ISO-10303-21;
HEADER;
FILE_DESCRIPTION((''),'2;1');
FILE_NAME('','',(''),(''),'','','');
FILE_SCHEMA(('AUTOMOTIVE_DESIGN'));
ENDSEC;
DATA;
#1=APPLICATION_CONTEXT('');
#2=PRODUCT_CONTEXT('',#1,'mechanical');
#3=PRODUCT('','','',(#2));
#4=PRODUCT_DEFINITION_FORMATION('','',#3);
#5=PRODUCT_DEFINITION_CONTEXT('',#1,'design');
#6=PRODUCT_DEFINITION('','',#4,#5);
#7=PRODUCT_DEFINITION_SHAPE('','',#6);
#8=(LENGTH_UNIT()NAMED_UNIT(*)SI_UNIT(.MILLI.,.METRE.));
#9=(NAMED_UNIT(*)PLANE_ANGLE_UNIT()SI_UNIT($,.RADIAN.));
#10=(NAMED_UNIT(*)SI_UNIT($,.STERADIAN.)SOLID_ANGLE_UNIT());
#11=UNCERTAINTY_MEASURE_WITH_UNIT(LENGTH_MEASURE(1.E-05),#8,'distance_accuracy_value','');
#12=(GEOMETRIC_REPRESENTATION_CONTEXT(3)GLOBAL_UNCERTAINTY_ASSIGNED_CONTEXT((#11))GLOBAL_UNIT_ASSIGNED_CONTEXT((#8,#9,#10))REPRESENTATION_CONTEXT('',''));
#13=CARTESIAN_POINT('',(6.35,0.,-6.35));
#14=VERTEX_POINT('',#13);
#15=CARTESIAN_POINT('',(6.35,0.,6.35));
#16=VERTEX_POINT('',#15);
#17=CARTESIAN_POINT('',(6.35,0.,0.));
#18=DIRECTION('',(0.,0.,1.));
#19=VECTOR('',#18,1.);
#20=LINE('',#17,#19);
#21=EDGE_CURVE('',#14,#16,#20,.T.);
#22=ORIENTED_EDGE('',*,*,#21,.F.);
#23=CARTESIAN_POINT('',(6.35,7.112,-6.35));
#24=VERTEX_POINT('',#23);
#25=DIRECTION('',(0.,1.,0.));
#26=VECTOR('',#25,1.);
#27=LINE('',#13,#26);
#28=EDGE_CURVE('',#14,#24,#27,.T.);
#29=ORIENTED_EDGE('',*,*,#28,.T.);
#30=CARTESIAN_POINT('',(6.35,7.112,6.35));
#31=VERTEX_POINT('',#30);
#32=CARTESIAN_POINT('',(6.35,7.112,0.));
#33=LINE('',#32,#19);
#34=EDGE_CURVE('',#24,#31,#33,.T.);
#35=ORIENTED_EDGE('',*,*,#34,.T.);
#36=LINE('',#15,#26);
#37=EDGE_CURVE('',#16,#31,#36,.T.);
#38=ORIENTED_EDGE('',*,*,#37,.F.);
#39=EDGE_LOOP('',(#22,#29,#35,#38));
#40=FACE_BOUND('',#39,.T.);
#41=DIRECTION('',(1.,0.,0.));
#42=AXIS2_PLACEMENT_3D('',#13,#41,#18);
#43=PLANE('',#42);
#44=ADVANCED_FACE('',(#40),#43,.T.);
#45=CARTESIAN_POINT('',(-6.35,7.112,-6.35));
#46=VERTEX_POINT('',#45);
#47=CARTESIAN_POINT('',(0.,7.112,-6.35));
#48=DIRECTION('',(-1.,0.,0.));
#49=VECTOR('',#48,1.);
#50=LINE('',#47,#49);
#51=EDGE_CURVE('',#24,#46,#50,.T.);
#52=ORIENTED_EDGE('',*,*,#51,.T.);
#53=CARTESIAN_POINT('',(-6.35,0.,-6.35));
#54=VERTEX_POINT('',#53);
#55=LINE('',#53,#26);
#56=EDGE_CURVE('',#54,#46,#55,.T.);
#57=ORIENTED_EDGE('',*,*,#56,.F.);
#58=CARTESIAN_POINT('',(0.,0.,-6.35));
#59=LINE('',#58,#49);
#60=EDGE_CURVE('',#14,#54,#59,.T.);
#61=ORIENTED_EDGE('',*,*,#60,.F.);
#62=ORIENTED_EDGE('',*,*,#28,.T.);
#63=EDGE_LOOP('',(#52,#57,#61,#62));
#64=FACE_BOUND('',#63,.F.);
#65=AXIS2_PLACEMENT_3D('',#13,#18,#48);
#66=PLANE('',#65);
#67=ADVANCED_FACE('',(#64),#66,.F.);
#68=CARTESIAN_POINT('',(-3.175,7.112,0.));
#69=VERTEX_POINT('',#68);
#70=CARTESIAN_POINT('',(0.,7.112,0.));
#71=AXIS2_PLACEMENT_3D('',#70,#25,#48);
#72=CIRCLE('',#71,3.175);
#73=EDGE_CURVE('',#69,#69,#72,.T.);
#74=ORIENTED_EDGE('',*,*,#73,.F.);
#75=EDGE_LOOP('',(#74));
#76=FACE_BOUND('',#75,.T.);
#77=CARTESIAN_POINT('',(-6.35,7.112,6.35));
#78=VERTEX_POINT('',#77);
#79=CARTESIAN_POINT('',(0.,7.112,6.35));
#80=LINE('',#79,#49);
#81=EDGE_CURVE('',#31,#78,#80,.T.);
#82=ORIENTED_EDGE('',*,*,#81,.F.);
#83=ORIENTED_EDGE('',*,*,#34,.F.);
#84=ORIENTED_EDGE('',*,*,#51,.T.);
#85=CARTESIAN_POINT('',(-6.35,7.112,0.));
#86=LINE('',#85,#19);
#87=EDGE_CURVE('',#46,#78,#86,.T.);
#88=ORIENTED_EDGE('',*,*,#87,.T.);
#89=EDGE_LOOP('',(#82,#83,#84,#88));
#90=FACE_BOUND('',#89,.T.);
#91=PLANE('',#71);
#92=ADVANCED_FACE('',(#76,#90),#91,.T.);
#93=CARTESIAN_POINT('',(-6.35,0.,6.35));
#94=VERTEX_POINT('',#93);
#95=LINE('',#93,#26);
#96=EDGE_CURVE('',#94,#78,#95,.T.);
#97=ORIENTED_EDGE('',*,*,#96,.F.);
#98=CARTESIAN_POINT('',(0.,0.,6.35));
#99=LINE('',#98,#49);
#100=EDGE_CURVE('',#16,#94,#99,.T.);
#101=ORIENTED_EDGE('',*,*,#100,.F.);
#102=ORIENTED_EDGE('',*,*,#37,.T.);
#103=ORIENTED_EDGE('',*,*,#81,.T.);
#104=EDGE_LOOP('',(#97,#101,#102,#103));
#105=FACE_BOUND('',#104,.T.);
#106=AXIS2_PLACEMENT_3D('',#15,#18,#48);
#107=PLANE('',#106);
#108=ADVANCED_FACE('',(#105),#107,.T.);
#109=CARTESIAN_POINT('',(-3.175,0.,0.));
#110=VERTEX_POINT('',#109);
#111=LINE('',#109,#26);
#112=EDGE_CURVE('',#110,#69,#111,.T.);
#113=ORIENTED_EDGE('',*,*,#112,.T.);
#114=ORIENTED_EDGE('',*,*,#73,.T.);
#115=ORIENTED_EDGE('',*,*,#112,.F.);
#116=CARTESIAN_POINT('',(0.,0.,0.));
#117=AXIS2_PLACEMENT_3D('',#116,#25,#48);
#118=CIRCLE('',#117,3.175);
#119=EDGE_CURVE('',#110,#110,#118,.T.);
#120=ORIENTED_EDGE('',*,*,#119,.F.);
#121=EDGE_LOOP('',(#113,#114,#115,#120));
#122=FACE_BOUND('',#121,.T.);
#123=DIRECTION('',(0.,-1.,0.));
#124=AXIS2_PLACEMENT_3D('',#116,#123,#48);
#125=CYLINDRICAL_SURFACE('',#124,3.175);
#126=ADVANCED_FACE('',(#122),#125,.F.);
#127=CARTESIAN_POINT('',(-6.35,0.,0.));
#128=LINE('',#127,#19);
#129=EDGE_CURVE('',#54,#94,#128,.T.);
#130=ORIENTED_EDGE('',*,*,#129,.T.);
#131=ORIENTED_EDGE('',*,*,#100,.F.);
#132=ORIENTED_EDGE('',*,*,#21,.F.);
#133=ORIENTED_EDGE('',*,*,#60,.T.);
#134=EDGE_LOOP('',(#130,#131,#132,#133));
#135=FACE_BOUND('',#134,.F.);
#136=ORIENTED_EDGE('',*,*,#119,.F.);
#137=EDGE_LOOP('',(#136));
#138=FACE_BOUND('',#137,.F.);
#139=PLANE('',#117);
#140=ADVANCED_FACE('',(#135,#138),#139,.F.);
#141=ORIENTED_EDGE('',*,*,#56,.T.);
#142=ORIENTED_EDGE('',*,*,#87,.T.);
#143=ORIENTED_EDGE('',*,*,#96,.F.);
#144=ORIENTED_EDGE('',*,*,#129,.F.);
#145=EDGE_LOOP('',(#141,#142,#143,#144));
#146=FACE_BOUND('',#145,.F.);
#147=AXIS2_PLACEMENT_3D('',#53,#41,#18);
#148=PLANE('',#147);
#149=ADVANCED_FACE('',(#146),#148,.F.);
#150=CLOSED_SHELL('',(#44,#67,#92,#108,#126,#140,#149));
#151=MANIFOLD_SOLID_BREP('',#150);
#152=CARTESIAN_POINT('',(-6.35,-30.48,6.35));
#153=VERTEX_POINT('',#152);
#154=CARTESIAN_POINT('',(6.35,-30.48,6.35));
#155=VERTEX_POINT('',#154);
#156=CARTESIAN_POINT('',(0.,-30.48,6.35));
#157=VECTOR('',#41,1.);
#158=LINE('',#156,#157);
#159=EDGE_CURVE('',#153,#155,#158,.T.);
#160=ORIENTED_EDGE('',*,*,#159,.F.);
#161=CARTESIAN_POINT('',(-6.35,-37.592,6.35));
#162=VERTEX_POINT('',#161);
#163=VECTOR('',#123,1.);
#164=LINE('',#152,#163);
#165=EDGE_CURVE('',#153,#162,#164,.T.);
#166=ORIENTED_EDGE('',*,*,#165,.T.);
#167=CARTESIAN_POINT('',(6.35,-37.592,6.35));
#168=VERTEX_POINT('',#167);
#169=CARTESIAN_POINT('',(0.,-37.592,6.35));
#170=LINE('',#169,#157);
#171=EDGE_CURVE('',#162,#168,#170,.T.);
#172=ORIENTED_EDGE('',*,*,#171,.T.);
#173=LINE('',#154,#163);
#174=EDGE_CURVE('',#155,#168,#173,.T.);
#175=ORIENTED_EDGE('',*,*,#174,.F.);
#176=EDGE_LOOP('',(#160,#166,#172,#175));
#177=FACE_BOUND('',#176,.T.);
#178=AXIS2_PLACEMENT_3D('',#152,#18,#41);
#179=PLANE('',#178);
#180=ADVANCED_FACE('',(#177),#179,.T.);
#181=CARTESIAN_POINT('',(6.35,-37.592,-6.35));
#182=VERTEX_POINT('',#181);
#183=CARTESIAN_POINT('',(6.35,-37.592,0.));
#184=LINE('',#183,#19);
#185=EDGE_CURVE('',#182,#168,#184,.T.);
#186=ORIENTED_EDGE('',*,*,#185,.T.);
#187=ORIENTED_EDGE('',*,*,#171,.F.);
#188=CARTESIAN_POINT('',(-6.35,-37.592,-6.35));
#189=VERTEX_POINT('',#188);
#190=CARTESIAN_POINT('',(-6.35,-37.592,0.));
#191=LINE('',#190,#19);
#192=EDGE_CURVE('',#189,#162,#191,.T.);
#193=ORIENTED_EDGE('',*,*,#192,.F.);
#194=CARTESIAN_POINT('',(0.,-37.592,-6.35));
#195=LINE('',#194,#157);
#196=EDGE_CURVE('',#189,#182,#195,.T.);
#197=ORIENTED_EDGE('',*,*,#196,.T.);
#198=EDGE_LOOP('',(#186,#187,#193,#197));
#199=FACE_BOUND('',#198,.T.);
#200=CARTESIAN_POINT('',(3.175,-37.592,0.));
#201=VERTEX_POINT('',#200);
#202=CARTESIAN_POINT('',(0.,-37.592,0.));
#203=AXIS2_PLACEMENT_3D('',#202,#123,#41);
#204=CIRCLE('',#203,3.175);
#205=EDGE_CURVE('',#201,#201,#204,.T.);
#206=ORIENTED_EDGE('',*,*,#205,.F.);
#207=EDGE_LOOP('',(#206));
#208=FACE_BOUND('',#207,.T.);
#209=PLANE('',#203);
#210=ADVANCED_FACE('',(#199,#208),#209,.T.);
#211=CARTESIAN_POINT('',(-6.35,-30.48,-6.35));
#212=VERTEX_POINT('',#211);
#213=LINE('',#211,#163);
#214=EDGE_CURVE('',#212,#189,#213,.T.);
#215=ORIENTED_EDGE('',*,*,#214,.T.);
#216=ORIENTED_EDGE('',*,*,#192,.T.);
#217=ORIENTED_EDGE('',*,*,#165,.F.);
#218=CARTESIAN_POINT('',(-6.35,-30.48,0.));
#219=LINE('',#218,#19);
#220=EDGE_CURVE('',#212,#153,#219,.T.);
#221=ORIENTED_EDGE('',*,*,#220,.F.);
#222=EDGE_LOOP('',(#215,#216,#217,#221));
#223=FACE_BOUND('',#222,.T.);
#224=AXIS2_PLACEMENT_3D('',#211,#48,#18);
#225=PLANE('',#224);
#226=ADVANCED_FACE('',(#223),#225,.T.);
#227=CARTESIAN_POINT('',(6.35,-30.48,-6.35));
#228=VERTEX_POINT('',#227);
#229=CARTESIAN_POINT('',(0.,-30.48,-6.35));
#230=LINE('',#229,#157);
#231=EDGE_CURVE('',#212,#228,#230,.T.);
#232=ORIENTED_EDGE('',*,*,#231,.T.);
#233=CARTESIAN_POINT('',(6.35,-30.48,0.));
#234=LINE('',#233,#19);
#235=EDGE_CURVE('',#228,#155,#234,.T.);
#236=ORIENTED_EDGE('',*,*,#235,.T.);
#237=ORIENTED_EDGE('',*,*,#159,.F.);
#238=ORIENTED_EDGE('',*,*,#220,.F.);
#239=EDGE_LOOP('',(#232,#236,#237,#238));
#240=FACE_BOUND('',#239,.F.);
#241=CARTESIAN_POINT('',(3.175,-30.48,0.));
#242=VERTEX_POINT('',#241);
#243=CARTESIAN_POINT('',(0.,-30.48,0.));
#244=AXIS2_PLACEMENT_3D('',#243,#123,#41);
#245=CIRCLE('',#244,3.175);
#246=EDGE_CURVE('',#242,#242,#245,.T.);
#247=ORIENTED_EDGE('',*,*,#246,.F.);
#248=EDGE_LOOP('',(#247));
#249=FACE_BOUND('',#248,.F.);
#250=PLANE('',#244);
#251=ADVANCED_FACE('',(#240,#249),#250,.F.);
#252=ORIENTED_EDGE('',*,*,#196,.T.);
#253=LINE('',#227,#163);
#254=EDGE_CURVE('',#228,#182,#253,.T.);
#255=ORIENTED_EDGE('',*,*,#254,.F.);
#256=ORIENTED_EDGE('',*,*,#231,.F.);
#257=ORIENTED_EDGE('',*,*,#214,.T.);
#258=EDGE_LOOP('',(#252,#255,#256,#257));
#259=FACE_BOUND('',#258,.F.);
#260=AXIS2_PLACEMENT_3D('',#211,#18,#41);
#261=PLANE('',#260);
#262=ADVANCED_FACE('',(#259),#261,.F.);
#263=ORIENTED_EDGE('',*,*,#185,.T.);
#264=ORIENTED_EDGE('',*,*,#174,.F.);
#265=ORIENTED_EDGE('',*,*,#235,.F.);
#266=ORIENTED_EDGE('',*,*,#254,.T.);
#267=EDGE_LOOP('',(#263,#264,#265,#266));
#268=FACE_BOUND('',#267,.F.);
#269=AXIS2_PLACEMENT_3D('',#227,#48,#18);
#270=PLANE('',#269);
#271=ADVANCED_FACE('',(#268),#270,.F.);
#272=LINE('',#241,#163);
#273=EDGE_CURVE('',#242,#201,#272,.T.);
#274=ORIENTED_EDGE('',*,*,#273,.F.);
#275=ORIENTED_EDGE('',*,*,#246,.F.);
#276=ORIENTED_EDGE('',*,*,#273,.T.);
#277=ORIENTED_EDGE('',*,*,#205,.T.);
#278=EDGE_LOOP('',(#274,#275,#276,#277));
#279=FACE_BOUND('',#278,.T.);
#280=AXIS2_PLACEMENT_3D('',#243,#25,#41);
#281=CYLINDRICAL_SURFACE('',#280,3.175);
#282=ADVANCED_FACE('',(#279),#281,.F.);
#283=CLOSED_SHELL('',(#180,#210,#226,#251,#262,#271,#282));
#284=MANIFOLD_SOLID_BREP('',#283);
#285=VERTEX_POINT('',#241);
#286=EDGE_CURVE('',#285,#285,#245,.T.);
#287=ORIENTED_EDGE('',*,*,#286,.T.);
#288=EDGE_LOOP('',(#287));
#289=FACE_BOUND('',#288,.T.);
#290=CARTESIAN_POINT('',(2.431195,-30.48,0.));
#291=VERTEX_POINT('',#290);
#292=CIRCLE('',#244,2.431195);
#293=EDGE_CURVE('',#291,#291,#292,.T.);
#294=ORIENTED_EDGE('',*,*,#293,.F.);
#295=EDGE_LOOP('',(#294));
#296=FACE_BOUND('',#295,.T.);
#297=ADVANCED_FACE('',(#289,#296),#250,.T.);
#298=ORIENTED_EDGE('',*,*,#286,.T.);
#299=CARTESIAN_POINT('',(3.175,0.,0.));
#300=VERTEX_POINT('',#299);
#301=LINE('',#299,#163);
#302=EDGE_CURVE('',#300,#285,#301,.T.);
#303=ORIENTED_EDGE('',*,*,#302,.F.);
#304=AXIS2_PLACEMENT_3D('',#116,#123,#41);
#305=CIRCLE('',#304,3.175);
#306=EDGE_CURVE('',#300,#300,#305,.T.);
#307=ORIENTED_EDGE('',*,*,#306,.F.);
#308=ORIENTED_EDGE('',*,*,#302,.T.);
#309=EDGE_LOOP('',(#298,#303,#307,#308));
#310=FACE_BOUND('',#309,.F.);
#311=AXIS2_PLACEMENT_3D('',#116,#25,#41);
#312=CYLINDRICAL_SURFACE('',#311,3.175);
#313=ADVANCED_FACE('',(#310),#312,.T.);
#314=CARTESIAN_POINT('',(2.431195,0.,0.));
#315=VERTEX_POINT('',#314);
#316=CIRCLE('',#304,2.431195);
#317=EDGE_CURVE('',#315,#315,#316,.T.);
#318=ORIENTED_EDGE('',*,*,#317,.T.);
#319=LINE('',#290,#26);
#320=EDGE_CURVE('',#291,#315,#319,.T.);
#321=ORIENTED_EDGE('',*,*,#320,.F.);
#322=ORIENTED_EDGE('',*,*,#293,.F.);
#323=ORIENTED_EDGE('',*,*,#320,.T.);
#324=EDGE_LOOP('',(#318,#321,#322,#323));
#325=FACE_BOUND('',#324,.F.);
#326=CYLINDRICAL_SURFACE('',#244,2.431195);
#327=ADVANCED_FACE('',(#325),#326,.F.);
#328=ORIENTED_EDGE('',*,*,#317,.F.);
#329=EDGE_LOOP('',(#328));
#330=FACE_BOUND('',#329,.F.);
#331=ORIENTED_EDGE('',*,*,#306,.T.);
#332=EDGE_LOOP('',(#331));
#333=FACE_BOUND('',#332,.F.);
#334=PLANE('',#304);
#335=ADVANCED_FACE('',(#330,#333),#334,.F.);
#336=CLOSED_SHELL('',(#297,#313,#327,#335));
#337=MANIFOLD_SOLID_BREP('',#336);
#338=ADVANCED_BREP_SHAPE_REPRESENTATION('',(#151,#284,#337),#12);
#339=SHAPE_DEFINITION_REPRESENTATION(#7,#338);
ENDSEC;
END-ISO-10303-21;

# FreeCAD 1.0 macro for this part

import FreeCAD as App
import Part
import Sketcher
Q = App.Units.Quantity

doc = App.newDocument("Part")
params = doc.addObject("Spreadsheet::Sheet", "Params")
for row, (alias, value) in enumerate([
    ("sketch1_diameter", "0.25 in"),
    ("pad1_length", "1.2 in"),
    ("pocket1_length", "1.72 in"),
    ("sketch3_diameter", "0.25 in"),
    ("sketch3_width", "0.5 in"),
    ("pad2_length", "0.28 in"),
    ("sketch4_diameter", "0.25 in"),
    ("sketch4_width", "0.5 in"),
    ("pad3_length", "0.28 in"),
], start=1):
    params.set(f"A{row}", alias)
    params.set(f"B{row}", "=" + value)
    params.setAlias(f"B{row}", alias)

body = doc.addObject("PartDesign::Body", "Body")

# Sketch on XZ plane
sketch1 = body.newObject("Sketcher::SketchObject", "Sketch")
sketch1.AttachmentSupport = (doc.getObject("XZ_Plane"), [""])
sketch1.MapMode = "FlatFace"
sketch1.addGeometry(Part.Circle(App.Vector(0, 0, 0), App.Vector(0, 0, 1), 3.175), False)
sketch1.addConstraint([
    Sketcher.Constraint("Coincident", 0, 3, -1, 1),
    Sketcher.Constraint("Diameter", 0, Q("0.25 in")),
])
sketch1.setExpression("Constraints[1]", "Params.sketch1_diameter")
pad1 = body.newObject("PartDesign::Pad", "Pad")
pad1.Profile = sketch1
pad1.setExpression("Length", "Params.pad1_length")

# Sketch on XZ plane
sketch2 = body.newObject("Sketcher::SketchObject", "Sketch001")
sketch2.AttachmentSupport = (doc.getObject("XZ_Plane"), [""])
sketch2.MapMode = "FlatFace"
sketch2.AttachmentOffset = App.Placement(App.Vector(0, 0, 1.2 * 25.4), App.Rotation())
sketch2.addGeometry(Part.Circle(App.Vector(0, 0, 0), App.Vector(0, 0, 1), 2.431195), False)
sketch2.addConstraint([
    Sketcher.Constraint("Coincident", 0, 3, -1, 1),
    Sketcher.Constraint("Diameter", 0, 4.86239),
])
pocket1 = body.newObject("PartDesign::Pocket", "Pocket")
pocket1.Profile = sketch2
pocket1.setExpression("Length", "Params.pocket1_length")
body2 = doc.addObject("PartDesign::Body", "Body001")

# Sketch on XZ plane
sketch3 = body2.newObject("Sketcher::SketchObject", "Sketch002")
sketch3.AttachmentSupport = (doc.getObject("XZ_Plane001"), [""])
sketch3.MapMode = "FlatFace"
sketch3.AttachmentOffset = App.Placement(App.Vector(0, 0, 1.2 * 25.4), App.Rotation())
sketch3.addGeometry([
    Part.LineSegment(App.Vector(-6.35, 6.35, 0), App.Vector(-6.35, -6.35, 0)),  # 0
    Part.LineSegment(App.Vector(-6.35, -6.35, 0), App.Vector(6.35, -6.35, 0)),  # 1
    Part.LineSegment(App.Vector(6.35, -6.35, 0), App.Vector(6.35, 6.35, 0)),  # 2
    Part.LineSegment(App.Vector(6.35, 6.35, 0), App.Vector(-6.35, 6.35, 0)),  # 3
    Part.Circle(App.Vector(0, 0, 0), App.Vector(0, 0, 1), 3.175),  # 4
], False)
sketch3.addConstraint([
    Sketcher.Constraint("Coincident", 0, 2, 1, 1),
    Sketcher.Constraint("Coincident", 1, 2, 2, 1),
    Sketcher.Constraint("Coincident", 2, 2, 3, 1),
    Sketcher.Constraint("Coincident", 3, 2, 0, 1),
    Sketcher.Constraint("Vertical", 0),
    Sketcher.Constraint("Horizontal", 1),
    Sketcher.Constraint("Vertical", 2),
    Sketcher.Constraint("Horizontal", 3),
    Sketcher.Constraint("Coincident", 4, 3, -1, 1),
    Sketcher.Constraint("Symmetric", 0, 2, 2, 2, -1, 1),
    Sketcher.Constraint("Equal", 3, 0),
    Sketcher.Constraint("Diameter", 4, Q("0.25 in")),
    Sketcher.Constraint("DistanceX", 1, 1, 1, 2, Q("0.5 in")),
])
sketch3.setExpression("Constraints[11]", "Params.sketch3_diameter")
sketch3.setExpression("Constraints[12]", "Params.sketch3_width")
pad2 = body2.newObject("PartDesign::Pad", "Pad001")
pad2.Profile = sketch3
pad2.setExpression("Length", "Params.pad2_length")
body3 = doc.addObject("PartDesign::Body", "Body002")

# Sketch on XZ plane
sketch4 = body3.newObject("Sketcher::SketchObject", "Sketch003")
sketch4.AttachmentSupport = (doc.getObject("XZ_Plane002"), [""])
sketch4.MapMode = "FlatFace"
sketch4.addGeometry([
    Part.LineSegment(App.Vector(6.35, 6.35, 0), App.Vector(6.35, -6.35, 0)),  # 0
    Part.LineSegment(App.Vector(6.35, -6.35, 0), App.Vector(-6.35, -6.35, 0)),  # 1
    Part.LineSegment(App.Vector(-6.35, -6.35, 0), App.Vector(-6.35, 6.35, 0)),  # 2
    Part.LineSegment(App.Vector(-6.35, 6.35, 0), App.Vector(6.35, 6.35, 0)),  # 3
    Part.Circle(App.Vector(0, 0, 0), App.Vector(0, 0, 1), 3.175),  # 4
], False)
sketch4.addConstraint([
    Sketcher.Constraint("Coincident", 0, 2, 1, 1),
    Sketcher.Constraint("Coincident", 1, 2, 2, 1),
    Sketcher.Constraint("Coincident", 2, 2, 3, 1),
    Sketcher.Constraint("Coincident", 3, 2, 0, 1),
    Sketcher.Constraint("Vertical", 0),
    Sketcher.Constraint("Horizontal", 1),
    Sketcher.Constraint("Vertical", 2),
    Sketcher.Constraint("Horizontal", 3),
    Sketcher.Constraint("Coincident", 4, 3, -1, 1),
    Sketcher.Constraint("Symmetric", 0, 2, 2, 2, -1, 1),
    Sketcher.Constraint("Equal", 3, 0),
    Sketcher.Constraint("Diameter", 4, Q("0.25 in")),
    Sketcher.Constraint("DistanceX", 1, 2, 1, 1, Q("0.5 in")),
])
sketch4.setExpression("Constraints[11]", "Params.sketch4_diameter")
sketch4.setExpression("Constraints[12]", "Params.sketch4_width")
pad3 = body3.newObject("PartDesign::Pad", "Pad002")
pad3.Profile = sketch4
pad3.setExpression("Length", "Params.pad3_length")
pad3.Reversed = True

doc.recompute()
